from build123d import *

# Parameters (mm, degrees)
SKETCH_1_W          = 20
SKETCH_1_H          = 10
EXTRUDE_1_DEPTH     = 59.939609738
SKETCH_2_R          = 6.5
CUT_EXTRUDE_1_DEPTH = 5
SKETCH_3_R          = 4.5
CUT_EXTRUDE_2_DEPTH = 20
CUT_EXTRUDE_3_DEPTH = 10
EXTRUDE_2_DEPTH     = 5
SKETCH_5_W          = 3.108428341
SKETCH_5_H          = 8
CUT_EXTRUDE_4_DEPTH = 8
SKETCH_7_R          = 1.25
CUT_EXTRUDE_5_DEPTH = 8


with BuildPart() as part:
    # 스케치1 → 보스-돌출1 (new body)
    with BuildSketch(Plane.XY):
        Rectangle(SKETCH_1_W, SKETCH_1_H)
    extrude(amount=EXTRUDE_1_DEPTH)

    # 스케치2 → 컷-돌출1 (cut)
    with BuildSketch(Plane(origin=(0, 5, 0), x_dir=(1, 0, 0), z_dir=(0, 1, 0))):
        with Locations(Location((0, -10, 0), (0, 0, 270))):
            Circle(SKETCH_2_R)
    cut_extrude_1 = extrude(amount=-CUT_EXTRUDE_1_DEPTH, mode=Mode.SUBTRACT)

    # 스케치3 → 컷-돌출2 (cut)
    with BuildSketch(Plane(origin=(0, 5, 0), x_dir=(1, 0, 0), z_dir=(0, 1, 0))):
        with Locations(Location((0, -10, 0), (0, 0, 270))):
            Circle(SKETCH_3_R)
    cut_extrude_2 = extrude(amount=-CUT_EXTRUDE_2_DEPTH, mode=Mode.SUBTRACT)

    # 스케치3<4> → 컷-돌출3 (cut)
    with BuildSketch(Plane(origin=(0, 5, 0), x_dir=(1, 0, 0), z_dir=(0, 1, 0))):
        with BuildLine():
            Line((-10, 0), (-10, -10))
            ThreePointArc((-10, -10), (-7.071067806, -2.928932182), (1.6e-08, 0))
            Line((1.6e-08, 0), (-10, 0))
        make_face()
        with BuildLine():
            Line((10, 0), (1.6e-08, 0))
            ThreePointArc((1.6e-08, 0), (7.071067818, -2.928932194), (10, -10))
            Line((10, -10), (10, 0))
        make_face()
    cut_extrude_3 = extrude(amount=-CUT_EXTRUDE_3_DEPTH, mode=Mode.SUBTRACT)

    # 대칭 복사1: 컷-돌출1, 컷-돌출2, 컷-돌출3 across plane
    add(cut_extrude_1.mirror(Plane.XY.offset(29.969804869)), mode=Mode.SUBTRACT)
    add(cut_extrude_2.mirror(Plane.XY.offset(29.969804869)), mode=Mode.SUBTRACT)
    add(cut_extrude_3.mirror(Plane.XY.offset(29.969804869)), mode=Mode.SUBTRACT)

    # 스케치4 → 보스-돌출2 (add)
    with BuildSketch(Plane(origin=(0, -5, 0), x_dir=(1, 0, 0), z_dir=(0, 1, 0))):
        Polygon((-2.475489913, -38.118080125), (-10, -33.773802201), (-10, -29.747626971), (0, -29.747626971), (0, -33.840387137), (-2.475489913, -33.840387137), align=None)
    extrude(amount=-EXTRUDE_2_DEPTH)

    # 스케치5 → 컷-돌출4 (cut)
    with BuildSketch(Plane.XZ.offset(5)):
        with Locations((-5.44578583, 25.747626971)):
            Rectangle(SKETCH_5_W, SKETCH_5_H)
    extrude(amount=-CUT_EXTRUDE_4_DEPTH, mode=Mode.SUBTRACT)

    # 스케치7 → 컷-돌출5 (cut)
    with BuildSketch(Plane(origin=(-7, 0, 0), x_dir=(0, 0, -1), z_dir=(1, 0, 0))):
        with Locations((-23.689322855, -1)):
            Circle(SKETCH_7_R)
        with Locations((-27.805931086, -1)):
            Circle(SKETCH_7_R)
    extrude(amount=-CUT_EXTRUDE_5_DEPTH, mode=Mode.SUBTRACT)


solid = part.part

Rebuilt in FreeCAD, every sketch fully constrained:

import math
import FreeCAD as App
import Part
import Sketcher

V = App.Vector
Q = App.Units.Quantity

doc = App.newDocument("Part")
body = doc.addObject("PartDesign::Body", "Body")

sketch1 = body.newObject("Sketcher::SketchObject", "Sketch")
sketch1.AttachmentSupport = (doc.getObject("XY_Plane"), [""])
sketch1.MapMode = "FlatFace"
sketch1.addGeometry([
    Part.LineSegment(V(-10, 5, 0), V(-10, -5, 0)),
    Part.LineSegment(V(-10, -5, 0), V(10, -5, 0)),
    Part.LineSegment(V(10, -5, 0), V(10, 5, 0)),
    Part.LineSegment(V(10, 5, 0), V(-10, 5, 0)),
], False)
sketch1.addConstraint([
    Sketcher.Constraint("Coincident", 0, 2, 1, 1),
    Sketcher.Constraint("Coincident", 1, 2, 2, 1),
    Sketcher.Constraint("Coincident", 2, 2, 3, 1),
    Sketcher.Constraint("Coincident", 3, 2, 0, 1),
    Sketcher.Constraint("Vertical", 0),
    Sketcher.Constraint("Horizontal", 1),
    Sketcher.Constraint("Vertical", 2),
    Sketcher.Constraint("Horizontal", 3),
    Sketcher.Constraint("Symmetric", 0, 2, 2, 2, -1, 1),
    Sketcher.Constraint("DistanceX", 1, 1, 1, 2, 20.0),
    Sketcher.Constraint("DistanceY", 0, 2, 0, 1, 10.0),
])
pad1 = body.newObject("PartDesign::Pad", "Pad")
pad1.Profile = sketch1
pad1.Length = 59.93961

sketch2 = body.newObject("Sketcher::SketchObject", "Sketch001")
sketch2.AttachmentSupport = (doc.getObject("XZ_Plane"), [""])
sketch2.MapMode = "FlatFace"
sketch2.AttachmentOffset = App.Placement(V(0, 0, -5), App.Rotation())
sketch2.addGeometry(Part.Circle(V(0, 10, 0), V(0, 0, 1), 6), False)
sketch2.addConstraint([
    Sketcher.Constraint("PointOnObject", 0, 3, -2),
    Sketcher.Constraint("Diameter", 0, 13.0),
    Sketcher.Constraint("DistanceY", -1, 1, 0, 3, 10.0),
])
pocket1 = body.newObject("PartDesign::Pocket", "Pocket")
pocket1.Profile = sketch2
pocket1.Length = 5
pocket1.Reversed = True

sketch3 = body.newObject("Sketcher::SketchObject", "Sketch002")
sketch3.AttachmentSupport = (doc.getObject("XZ_Plane"), [""])
sketch3.MapMode = "FlatFace"
sketch3.AttachmentOffset = App.Placement(V(0, 0, -5), App.Rotation())
sketch3.addGeometry(Part.Circle(V(0, 10, 0), V(0, 0, 1), 4.5), False)
sketch3.addConstraint([
    Sketcher.Constraint("PointOnObject", 0, 3, -2),
    Sketcher.Constraint("Diameter", 0, 9.0),
    Sketcher.Constraint("DistanceY", -1, 1, 0, 3, 10.0),
])
pocket2 = body.newObject("PartDesign::Pocket", "Pocket001")
pocket2.Profile = sketch3
pocket2.Length = 20
pocket2.Reversed = True

sketch4 = body.newObject("Sketcher::SketchObject", "Sketch003")
sketch4.AttachmentSupport = (doc.getObject("XZ_Plane"), [""])
sketch4.MapMode = "FlatFace"
sketch4.AttachmentOffset = App.Placement(V(0, 0, -5), App.Rotation())
sketch4.addGeometry([
    Part.LineSegment(V(-10, 0, 0), V(-10, 10, 0)),
    Part.ArcOfCircle(Part.Circle(V(0, 10, 0), V(0, 0, 1), 10), math.radians(180), math.radians(270)),
    Part.LineSegment(V(0, 0, 0), V(-10, 0, 0)),
    Part.LineSegment(V(10, 0, 0), V(0, 0, 0)),
    Part.ArcOfCircle(Part.Circle(V(0, 10, 0), V(0, 0, 1), 10), math.radians(-90), math.radians(0)),
    Part.LineSegment(V(10, 10, 0), V(10, 0, 0)),
], False)
sketch4.addConstraint([
    Sketcher.Constraint("Tangent", 0, 2, 1, 1),
    Sketcher.Constraint("Tangent", 1, 2, 2, 1),
    Sketcher.Constraint("Coincident", 2, 2, 0, 1),
    Sketcher.Constraint("Tangent", 3, 2, 4, 1),
    Sketcher.Constraint("Tangent", 4, 2, 5, 1),
    Sketcher.Constraint("Coincident", 5, 2, 3, 1),
    Sketcher.Constraint("Vertical", 0),
    Sketcher.Constraint("Horizontal", 2),
    Sketcher.Constraint("Horizontal", 3),
    Sketcher.Constraint("Vertical", 5),
    Sketcher.Constraint("Coincident", 1, 2, -1, 1),
    Sketcher.Constraint("Coincident", 3, 2, -1, 1),
    Sketcher.Constraint("Equal", 1, 4),
    Sketcher.Constraint("Radius", 1, 10.0),
])
pocket3 = body.newObject("PartDesign::Pocket", "Pocket002")
pocket3.Profile = sketch4
pocket3.Length = 10
pocket3.Reversed = True
doc.recompute()

datumplane = body.newObject("PartDesign::Plane", "DatumPlane")
datumplane.AttachmentSupport = (doc.getObject("XY_Plane"), [""])
datumplane.MapMode = "FlatFace"
datumplane.AttachmentOffset = App.Placement(V(0, 0, 29.969805), App.Rotation())
mirrored = body.newObject("PartDesign::Mirrored", "Mirrored")
mirrored.Originals = [pocket1, pocket2, pocket3]
mirrored.MirrorPlane = (datumplane, [""])
body.Tip = mirrored

sketch5 = body.newObject("Sketcher::SketchObject", "Sketch004")
sketch5.AttachmentSupport = (doc.getObject("XZ_Plane"), [""])
sketch5.MapMode = "FlatFace"
sketch5.AttachmentOffset = App.Placement(V(0, 0, 5), App.Rotation())
sketch5.addGeometry([
    Part.LineSegment(V(-10, 33.8, 0), V(-2.5, 38.1, 0)),
    Part.LineSegment(V(-2.5, 38.1, 0), V(-2.5, 33.8, 0)),
    Part.LineSegment(V(-2.5, 33.8, 0), V(0, 33.8, 0)),
    Part.LineSegment(V(0, 33.8, 0), V(0, 29.7, 0)),
    Part.LineSegment(V(0, 29.7, 0), V(-10, 29.7, 0)),
    Part.LineSegment(V(-10, 29.7, 0), V(-10, 33.8, 0)),
], False)
sketch5.addConstraint([
    Sketcher.Constraint("Coincident", 0, 2, 1, 1),
    Sketcher.Constraint("Coincident", 1, 2, 2, 1),
    Sketcher.Constraint("Coincident", 2, 2, 3, 1),
    Sketcher.Constraint("Coincident", 3, 2, 4, 1),
    Sketcher.Constraint("Coincident", 4, 2, 5, 1),
    Sketcher.Constraint("Coincident", 5, 2, 0, 1),
    Sketcher.Constraint("Vertical", 1),
    Sketcher.Constraint("Horizontal", 2),
    Sketcher.Constraint("Vertical", 3),
    Sketcher.Constraint("Horizontal", 4),
    Sketcher.Constraint("Vertical", 5),
    Sketcher.Constraint("PointOnObject", 2, 2, -2),
    Sketcher.Constraint("DistanceX", 4, 2, 4, 1, 10.0),
    Sketcher.Constraint("Angle", 0, Q("30 deg")),
    Sketcher.Constraint("DistanceX", 2, 1, 2, 2, 2.47549),
    Sketcher.Constraint("DistanceY", 3, 2, 3, 1, 4.09276),
    Sketcher.Constraint("DistanceY", 1, 2, 1, 1, 4.277693),
    Sketcher.Constraint("DistanceY", -1, 1, 0, 2, 38.11808),
])
pad2 = body.newObject("PartDesign::Pad", "Pad001")
pad2.Profile = sketch5
pad2.Length = 5

sketch6 = body.newObject("Sketcher::SketchObject", "Sketch005")
sketch6.AttachmentSupport = (doc.getObject("XZ_Plane"), [""])
sketch6.MapMode = "FlatFace"
sketch6.AttachmentOffset = App.Placement(V(0, 0, 5), App.Rotation())
sketch6.addGeometry([
    Part.LineSegment(V(-7, 29.7, 0), V(-7, 21.7, 0)),
    Part.LineSegment(V(-7, 21.7, 0), V(-3.9, 21.7, 0)),
    Part.LineSegment(V(-3.9, 21.7, 0), V(-3.9, 29.7, 0)),
    Part.LineSegment(V(-3.9, 29.7, 0), V(-7, 29.7, 0)),
], False)
sketch6.addConstraint([
    Sketcher.Constraint("Coincident", 0, 2, 1, 1),
    Sketcher.Constraint("Coincident", 1, 2, 2, 1),
    Sketcher.Constraint("Coincident", 2, 2, 3, 1),
    Sketcher.Constraint("Coincident", 3, 2, 0, 1),
    Sketcher.Constraint("Vertical", 0),
    Sketcher.Constraint("Horizontal", 1),
    Sketcher.Constraint("Vertical", 2),
    Sketcher.Constraint("Horizontal", 3),
    Sketcher.Constraint("DistanceY", 0, 2, 0, 1, 8.0),
    Sketcher.Constraint("DistanceX", 0, 2, -1, 1, 7.0),
    Sketcher.Constraint("DistanceX", 1, 1, 1, 2, 3.108428),
    Sketcher.Constraint("DistanceY", -1, 1, 0, 2, 21.747627),
])
pocket4 = body.newObject("PartDesign::Pocket", "Pocket003")
pocket4.Profile = sketch6
pocket4.Length = 8

sketch7 = body.newObject("Sketcher::SketchObject", "Sketch006")
sketch7.AttachmentSupport = (doc.getObject("YZ_Plane"), [""])
sketch7.MapMode = "FlatFace"
sketch7.AttachmentOffset = App.Placement(V(0, 0, -7), App.Rotation())
sketch7.addGeometry([
    Part.Circle(V(-1, 23.7, 0), V(0, 0, 1), 1.2),
    Part.Circle(V(-1, 27.8, 0), V(0, 0, 1), 1.2),
], False)
sketch7.addConstraint([
    Sketcher.Constraint("Equal", 0, 1),
    Sketcher.Constraint("Vertical", 0, 3, 1, 3),
    Sketcher.Constraint("Diameter", 0, 2.5),
    Sketcher.Constraint("DistanceX", 0, 3, -1, 1, 1.0),
    Sketcher.Constraint("DistanceY", -1, 1, 1, 3, 27.805931),
    Sketcher.Constraint("DistanceY", 0, 3, 1, 3, 4.116608),
])
pocket5 = body.newObject("PartDesign::Pocket", "Pocket004")
pocket5.Profile = sketch7
pocket5.Length = 8

doc.recompute()
